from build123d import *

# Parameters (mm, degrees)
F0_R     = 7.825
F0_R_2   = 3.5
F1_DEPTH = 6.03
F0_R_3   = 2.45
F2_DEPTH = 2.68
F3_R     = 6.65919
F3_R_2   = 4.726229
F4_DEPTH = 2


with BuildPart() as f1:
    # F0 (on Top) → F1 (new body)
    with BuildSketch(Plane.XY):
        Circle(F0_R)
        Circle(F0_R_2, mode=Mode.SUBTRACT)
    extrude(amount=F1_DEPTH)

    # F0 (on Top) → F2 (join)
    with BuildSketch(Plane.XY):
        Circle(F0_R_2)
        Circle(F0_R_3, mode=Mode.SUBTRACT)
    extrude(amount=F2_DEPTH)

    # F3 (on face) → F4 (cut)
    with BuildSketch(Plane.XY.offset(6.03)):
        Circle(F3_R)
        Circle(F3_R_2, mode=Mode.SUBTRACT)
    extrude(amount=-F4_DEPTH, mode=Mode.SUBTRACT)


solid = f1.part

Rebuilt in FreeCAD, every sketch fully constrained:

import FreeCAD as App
import Part
import Sketcher
from FreeCAD import Vector

doc = App.newDocument("Part")
params = doc.addObject("Spreadsheet::Sheet", "Params")
for row, (alias, value) in enumerate([
    ("sketch1_diameter", "7 mm"),
    ("sketch1_diameter2", "15.65 mm"),
    ("pad1_length", "6.03 mm"),
    ("sketch2_diameter", "7 mm"),
    ("sketch2_diameter2", "4.9 mm"),
    ("pad2_length", "2.68 mm"),
    ("pocket1_length", "2 mm"),
], start=1):
    params.set(f"A{row}", alias)
    params.set(f"B{row}", "=" + value)
    params.setAlias(f"B{row}", alias)

body = doc.addObject("PartDesign::Body", "Body")

# Sketch on XY plane
sketch1 = doc.addObject("Sketcher::SketchObject", "Sketch")
body.addObject(sketch1)
sketch1.AttachmentSupport = (doc.XY_Plane, [""])
sketch1.MapMode = "FlatFace"
sketch1.addGeometry(Part.Circle(Vector(0, 0, 0), Vector(0, 0, 1), 7.8), False)
sketch1.addGeometry(Part.Circle(Vector(0, 0, 0), Vector(0, 0, 1), 3.5), False)
sketch1.addConstraint(Sketcher.Constraint("Coincident", 0, 3, -1, 1))
sketch1.addConstraint(Sketcher.Constraint("Coincident", 1, 3, -1, 1))
sketch1.addConstraint(Sketcher.Constraint("Diameter", 1, 7.0))
sketch1.addConstraint(Sketcher.Constraint("Diameter", 0, 15.65))
sketch1.setExpression("Constraints[2]", "Params.sketch1_diameter")
sketch1.setExpression("Constraints[3]", "Params.sketch1_diameter2")
pad1 = doc.addObject("PartDesign::Pad", "Pad")
body.addObject(pad1)
pad1.Profile = sketch1
pad1.setExpression("Length", "Params.pad1_length")

# Sketch on XY plane
sketch2 = doc.addObject("Sketcher::SketchObject", "Sketch001")
body.addObject(sketch2)
sketch2.AttachmentSupport = (doc.XY_Plane, [""])
sketch2.MapMode = "FlatFace"
sketch2.addGeometry(Part.Circle(Vector(0, 0, 0), Vector(0, 0, 1), 3.5), False)
sketch2.addGeometry(Part.Circle(Vector(0, 0, 0), Vector(0, 0, 1), 2.5), False)
sketch2.addConstraint(Sketcher.Constraint("Coincident", 0, 3, -1, 1))
sketch2.addConstraint(Sketcher.Constraint("Coincident", 1, 3, -1, 1))
sketch2.addConstraint(Sketcher.Constraint("Diameter", 0, 7.0))
sketch2.addConstraint(Sketcher.Constraint("Diameter", 1, 4.9))
sketch2.setExpression("Constraints[2]", "Params.sketch2_diameter")
sketch2.setExpression("Constraints[3]", "Params.sketch2_diameter2")
pad2 = doc.addObject("PartDesign::Pad", "Pad001")
body.addObject(pad2)
pad2.Profile = sketch2
pad2.setExpression("Length", "Params.pad2_length")

# Sketch on XY plane
sketch3 = doc.addObject("Sketcher::SketchObject", "Sketch002")
body.addObject(sketch3)
sketch3.AttachmentSupport = (doc.XY_Plane, [""])
sketch3.MapMode = "FlatFace"
sketch3.AttachmentOffset = App.Placement(Vector(0, 0, 6.03), App.Rotation())
sketch3.addGeometry(Part.Circle(Vector(0, 0, 0), Vector(0, 0, 1), 6.7), False)
sketch3.addGeometry(Part.Circle(Vector(0, 0, 0), Vector(0, 0, 1), 4.7), False)
sketch3.addConstraint(Sketcher.Constraint("Coincident", 0, 3, -1, 1))
sketch3.addConstraint(Sketcher.Constraint("Coincident", 1, 3, -1, 1))
sketch3.addConstraint(Sketcher.Constraint("Diameter", 0, 13.31838))
sketch3.addConstraint(Sketcher.Constraint("Diameter", 1, 9.452458))
pocket1 = doc.addObject("PartDesign::Pocket", "Pocket")
body.addObject(pocket1)
pocket1.Profile = sketch3
pocket1.setExpression("Length", "Params.pocket1_length")

doc.recompute()
